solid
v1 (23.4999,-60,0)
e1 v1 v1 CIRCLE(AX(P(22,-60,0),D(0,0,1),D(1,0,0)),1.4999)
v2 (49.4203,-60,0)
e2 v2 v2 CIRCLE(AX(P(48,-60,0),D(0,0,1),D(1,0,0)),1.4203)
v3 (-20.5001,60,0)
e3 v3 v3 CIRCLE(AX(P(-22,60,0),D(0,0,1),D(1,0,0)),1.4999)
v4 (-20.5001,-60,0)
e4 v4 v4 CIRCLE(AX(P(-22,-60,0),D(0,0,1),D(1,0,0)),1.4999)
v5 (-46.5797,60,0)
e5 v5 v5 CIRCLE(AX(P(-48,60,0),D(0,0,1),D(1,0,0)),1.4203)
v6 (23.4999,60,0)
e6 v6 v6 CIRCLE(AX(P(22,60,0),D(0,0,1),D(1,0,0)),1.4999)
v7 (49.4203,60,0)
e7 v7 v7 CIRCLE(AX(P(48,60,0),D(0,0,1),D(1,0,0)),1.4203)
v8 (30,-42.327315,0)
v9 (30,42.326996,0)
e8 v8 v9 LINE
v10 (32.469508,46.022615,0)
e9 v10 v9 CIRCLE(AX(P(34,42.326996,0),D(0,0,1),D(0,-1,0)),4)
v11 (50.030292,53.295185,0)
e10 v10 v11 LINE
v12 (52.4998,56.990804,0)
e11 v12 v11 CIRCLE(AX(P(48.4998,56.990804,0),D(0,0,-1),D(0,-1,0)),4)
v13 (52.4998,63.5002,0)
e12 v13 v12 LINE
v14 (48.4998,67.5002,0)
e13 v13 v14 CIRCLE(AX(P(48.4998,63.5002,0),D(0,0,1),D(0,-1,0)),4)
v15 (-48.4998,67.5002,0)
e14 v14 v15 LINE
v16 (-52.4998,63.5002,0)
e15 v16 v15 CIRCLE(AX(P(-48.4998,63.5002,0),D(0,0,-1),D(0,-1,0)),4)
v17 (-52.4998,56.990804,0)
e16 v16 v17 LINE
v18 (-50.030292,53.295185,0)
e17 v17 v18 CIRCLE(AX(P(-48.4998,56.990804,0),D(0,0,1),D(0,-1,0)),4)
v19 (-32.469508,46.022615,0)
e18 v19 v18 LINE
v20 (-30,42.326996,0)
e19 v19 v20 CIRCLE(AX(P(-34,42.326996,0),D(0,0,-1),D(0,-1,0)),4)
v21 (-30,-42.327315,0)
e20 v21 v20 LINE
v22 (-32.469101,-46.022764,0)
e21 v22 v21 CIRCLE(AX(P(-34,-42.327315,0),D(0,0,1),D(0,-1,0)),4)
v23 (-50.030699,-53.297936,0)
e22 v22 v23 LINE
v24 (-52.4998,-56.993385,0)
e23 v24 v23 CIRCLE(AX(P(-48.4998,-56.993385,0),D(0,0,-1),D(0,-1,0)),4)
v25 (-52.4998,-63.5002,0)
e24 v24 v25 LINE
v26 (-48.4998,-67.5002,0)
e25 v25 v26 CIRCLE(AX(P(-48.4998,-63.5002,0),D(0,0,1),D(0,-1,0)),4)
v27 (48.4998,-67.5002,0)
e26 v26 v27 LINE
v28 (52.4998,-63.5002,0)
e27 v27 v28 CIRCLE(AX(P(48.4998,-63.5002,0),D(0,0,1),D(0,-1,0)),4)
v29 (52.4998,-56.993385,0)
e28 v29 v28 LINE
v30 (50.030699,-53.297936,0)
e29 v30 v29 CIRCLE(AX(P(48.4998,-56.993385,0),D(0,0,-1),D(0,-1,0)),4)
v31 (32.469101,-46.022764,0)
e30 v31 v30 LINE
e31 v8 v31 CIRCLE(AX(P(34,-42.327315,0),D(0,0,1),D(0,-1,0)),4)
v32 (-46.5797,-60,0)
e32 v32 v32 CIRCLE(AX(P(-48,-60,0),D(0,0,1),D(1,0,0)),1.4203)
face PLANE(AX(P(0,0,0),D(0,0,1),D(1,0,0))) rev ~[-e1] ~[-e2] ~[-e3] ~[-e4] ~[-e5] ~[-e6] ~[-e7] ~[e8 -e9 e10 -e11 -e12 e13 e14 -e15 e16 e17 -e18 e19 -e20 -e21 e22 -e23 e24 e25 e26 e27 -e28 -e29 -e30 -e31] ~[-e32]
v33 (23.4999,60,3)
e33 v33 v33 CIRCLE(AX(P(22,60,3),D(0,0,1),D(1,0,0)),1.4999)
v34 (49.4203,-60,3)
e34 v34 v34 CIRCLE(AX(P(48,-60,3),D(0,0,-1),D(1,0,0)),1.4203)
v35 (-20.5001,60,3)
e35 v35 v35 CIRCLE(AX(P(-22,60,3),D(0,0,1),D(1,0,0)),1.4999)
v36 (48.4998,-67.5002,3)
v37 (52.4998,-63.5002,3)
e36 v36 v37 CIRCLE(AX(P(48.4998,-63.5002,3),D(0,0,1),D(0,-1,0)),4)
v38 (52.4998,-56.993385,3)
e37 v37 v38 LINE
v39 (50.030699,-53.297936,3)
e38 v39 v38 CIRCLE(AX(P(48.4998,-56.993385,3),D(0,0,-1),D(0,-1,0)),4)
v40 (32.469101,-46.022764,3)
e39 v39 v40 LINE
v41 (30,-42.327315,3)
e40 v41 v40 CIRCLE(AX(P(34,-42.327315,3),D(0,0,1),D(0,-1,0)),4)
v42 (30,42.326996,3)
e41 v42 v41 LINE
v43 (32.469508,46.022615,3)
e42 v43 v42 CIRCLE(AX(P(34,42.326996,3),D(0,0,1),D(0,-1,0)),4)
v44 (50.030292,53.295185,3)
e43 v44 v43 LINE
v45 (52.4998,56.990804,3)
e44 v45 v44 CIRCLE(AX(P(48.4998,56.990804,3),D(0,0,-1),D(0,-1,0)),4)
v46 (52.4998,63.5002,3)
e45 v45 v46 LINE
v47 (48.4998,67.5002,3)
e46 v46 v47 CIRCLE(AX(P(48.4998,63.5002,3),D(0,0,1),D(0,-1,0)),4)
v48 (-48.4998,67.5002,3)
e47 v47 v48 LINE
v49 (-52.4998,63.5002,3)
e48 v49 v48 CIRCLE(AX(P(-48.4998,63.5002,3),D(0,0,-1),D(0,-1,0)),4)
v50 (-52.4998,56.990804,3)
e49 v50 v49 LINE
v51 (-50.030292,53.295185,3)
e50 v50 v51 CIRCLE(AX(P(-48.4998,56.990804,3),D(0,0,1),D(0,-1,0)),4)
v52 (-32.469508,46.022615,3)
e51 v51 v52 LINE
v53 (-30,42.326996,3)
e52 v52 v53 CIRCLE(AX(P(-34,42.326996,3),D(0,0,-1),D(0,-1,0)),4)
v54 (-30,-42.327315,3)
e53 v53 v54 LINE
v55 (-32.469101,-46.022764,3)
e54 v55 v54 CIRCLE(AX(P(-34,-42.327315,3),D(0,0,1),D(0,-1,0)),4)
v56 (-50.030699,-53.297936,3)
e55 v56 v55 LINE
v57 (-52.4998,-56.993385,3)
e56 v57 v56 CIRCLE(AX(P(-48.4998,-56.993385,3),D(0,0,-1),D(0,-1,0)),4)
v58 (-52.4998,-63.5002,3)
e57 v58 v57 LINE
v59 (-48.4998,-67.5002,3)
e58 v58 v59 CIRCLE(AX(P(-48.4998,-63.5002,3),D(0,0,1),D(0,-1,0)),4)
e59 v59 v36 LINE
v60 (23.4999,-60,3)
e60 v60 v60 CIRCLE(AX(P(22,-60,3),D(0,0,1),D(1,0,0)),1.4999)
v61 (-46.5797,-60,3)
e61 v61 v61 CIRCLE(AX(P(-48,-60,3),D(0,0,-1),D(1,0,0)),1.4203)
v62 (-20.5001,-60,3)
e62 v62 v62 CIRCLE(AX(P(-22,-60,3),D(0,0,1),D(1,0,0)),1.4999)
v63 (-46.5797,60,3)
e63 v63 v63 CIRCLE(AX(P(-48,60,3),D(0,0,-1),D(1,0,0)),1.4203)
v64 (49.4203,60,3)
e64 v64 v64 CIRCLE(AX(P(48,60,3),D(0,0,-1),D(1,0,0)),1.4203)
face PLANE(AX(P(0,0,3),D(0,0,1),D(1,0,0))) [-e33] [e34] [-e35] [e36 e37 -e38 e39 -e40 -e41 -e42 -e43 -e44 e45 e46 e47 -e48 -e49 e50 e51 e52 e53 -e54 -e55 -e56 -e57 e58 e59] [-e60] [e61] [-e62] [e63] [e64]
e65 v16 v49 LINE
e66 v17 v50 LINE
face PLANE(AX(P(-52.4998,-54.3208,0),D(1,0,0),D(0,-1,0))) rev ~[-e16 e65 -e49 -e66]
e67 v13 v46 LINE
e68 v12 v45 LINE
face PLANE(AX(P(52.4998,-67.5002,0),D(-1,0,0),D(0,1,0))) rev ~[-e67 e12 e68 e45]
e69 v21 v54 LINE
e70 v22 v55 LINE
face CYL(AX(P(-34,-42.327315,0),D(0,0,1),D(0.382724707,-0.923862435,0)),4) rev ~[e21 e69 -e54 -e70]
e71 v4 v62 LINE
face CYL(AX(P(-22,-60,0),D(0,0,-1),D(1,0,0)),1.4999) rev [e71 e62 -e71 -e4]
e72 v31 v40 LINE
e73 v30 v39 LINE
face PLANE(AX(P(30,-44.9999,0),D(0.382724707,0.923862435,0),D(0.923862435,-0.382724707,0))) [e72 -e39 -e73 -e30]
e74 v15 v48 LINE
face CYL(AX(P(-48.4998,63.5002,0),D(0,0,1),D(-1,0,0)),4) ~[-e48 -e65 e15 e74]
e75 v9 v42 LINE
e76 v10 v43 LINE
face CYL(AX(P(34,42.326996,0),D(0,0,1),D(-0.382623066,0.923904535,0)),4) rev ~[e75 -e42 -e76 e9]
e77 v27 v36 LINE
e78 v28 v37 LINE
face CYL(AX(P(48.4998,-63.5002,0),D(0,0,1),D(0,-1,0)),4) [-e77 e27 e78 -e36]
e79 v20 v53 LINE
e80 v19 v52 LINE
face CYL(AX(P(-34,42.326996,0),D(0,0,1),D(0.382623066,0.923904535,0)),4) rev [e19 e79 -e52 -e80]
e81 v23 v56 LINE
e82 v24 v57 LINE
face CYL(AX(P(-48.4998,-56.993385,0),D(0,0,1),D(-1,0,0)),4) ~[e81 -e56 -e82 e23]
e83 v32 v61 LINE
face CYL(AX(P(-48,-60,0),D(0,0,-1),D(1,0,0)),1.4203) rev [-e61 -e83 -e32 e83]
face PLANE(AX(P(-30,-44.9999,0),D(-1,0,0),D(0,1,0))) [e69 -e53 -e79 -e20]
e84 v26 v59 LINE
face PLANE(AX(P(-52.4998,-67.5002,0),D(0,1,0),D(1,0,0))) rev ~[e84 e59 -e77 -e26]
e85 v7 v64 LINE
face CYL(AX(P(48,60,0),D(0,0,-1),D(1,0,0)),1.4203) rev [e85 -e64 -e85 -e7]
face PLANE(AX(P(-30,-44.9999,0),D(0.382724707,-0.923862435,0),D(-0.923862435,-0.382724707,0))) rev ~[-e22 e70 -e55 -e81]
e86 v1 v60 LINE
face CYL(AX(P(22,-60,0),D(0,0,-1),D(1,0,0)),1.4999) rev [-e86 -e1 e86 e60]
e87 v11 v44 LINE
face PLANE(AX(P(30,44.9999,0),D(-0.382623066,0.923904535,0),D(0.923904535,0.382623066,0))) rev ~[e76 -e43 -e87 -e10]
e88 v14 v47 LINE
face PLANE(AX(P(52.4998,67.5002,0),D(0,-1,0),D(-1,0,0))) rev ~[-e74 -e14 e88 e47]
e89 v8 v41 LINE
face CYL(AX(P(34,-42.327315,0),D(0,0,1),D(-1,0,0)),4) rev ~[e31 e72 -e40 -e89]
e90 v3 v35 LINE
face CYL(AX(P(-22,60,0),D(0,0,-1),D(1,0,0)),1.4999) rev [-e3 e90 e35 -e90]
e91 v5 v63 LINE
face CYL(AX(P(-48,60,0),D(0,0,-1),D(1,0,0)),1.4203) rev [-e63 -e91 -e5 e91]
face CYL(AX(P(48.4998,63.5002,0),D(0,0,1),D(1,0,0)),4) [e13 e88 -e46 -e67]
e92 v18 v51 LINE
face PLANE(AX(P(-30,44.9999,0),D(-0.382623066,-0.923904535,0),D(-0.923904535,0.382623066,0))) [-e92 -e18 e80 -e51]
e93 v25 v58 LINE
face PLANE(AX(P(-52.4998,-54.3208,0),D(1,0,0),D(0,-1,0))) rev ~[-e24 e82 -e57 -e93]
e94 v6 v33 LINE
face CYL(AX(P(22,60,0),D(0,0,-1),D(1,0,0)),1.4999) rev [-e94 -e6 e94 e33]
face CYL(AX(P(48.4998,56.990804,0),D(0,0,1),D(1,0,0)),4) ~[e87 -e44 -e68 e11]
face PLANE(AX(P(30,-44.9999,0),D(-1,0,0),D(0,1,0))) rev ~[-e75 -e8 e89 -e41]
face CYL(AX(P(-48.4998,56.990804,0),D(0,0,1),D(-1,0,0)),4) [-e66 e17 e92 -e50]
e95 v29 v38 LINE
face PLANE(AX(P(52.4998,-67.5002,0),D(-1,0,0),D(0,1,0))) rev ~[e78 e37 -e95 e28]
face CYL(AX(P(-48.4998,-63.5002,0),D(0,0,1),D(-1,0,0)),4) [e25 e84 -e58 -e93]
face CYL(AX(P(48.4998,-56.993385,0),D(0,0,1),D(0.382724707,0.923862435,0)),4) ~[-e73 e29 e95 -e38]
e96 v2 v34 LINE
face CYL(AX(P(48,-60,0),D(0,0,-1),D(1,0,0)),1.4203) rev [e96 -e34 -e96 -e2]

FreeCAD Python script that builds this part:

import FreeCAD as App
import Part
import Sketcher


def edges_at(feature, points):
    """Names of the edges that pass closest to the given points."""
    edges = feature.Shape.Edges
    near = lambda p: min(range(len(edges)), key=lambda i: edges[i].distToShape(Part.Vertex(*p))[0])
    return sorted({f"Edge{near(p) + 1}" for p in points})

doc = App.newDocument("Part")
params = doc.addObject("Spreadsheet::Sheet", "Params")
for row, (alias, value) in enumerate([
    ("pad1_length", "3 mm"),
    ("fillet_radius", "4 mm"),
    ("pocket1_length", "10 mm"),
    ("fillet2_radius", "4 mm"),
    ("pocket2_length", "10 mm"),
], start=1):
    params.set(f"A{row}", alias)
    params.set(f"B{row}", "=" + value)
    params.setAlias(f"B{row}", alias)

body = doc.addObject("PartDesign::Body", "Body")

sketch1 = body.newObject("Sketcher::SketchObject", "Sketch")
sketch1.AttachmentSupport = (doc.getObject("XY_Plane"), [""])
sketch1.MapMode = "FlatFace"
sketch1.addGeometry(Part.LineSegment(App.Vector(-52.4998, -67.5002, 0), App.Vector(52.4998, -67.5002, 0)), False)
sketch1.addGeometry(Part.LineSegment(App.Vector(52.4998, -67.5002, 0), App.Vector(52.4998, 67.5002, 0)), False)
sketch1.addGeometry(Part.LineSegment(App.Vector(52.4998, 67.5002, 0), App.Vector(-52.4998, 67.5002, 0)), False)
sketch1.addGeometry(Part.LineSegment(App.Vector(-52.4998, 67.5002, 0), App.Vector(-52.4998, -67.5002, 0)), False)
sketch1.addGeometry(Part.Circle(App.Vector(-22, -60, 0), App.Vector(0, 0, 1), 1.4999), False)
sketch1.addGeometry(Part.Circle(App.Vector(22, -60, 0), App.Vector(0, 0, 1), 1.4999), False)
sketch1.addGeometry(Part.Circle(App.Vector(-22, 60, 0), App.Vector(0, 0, 1), 1.4999), False)
sketch1.addGeometry(Part.Circle(App.Vector(22, 60, 0), App.Vector(0, 0, 1), 1.4999), False)
sketch1.addConstraint(Sketcher.Constraint("Coincident", 0, 2, 1, 1))
sketch1.addConstraint(Sketcher.Constraint("Coincident", 1, 2, 2, 1))
sketch1.addConstraint(Sketcher.Constraint("Coincident", 2, 2, 3, 1))
sketch1.addConstraint(Sketcher.Constraint("Coincident", 3, 2, 0, 1))
sketch1.addConstraint(Sketcher.Constraint("Horizontal", 0))
sketch1.addConstraint(Sketcher.Constraint("Vertical", 1))
sketch1.addConstraint(Sketcher.Constraint("Horizontal", 2))
sketch1.addConstraint(Sketcher.Constraint("Vertical", 3))
sketch1.addConstraint(Sketcher.Constraint("Equal", 4, 5))
sketch1.addConstraint(Sketcher.Constraint("Equal", 5, 6))
sketch1.addConstraint(Sketcher.Constraint("Equal", 6, 7))
sketch1.addConstraint(Sketcher.Constraint("Symmetric", 5, 3, 6, 3, -1, 1))
sketch1.addConstraint(Sketcher.Constraint("Symmetric", 4, 3, 7, 3, -1, 1))
sketch1.addConstraint(Sketcher.Constraint("Symmetric", 0, 2, 2, 2, -1, 1))
sketch1.addConstraint(Sketcher.Constraint("Symmetric", 4, 3, 5, 3, -2))
sketch1.addConstraint(Sketcher.Constraint("DistanceX", 4, 3, -1, 1, 22.0))
sketch1.addConstraint(Sketcher.Constraint("DistanceY", 4, 3, -1, 1, 60.0))
sketch1.addConstraint(Sketcher.Constraint("Diameter", 4, 2.9998))
sketch1.addConstraint(Sketcher.Constraint("DistanceX", 0, 1, 0, 2, 104.9996))
sketch1.addConstraint(Sketcher.Constraint("DistanceY", 1, 1, 1, 2, 135.0004))
pad1 = body.newObject("PartDesign::Pad", "Pad")
pad1.Profile = sketch1
pad1.setExpression("Length", "Params.pad1_length")
doc.recompute()

fillet = body.newObject("PartDesign::Fillet", "Fillet")
fillet.Base = (pad1, edges_at(pad1, [
    (-52.5, 67.5, 1.5),
    (52.5, 67.5, 1.5),
    (52.5, -67.5, 1.5),
    (-52.5, -67.5, 1.5),
]))
fillet.setExpression("Radius", "Params.fillet_radius")

sketch2 = body.newObject("Sketcher::SketchObject", "Sketch001")
sketch2.AttachmentSupport = (doc.getObject("XY_Plane"), [""])
sketch2.MapMode = "FlatFace"
sketch2.addGeometry(Part.LineSegment(App.Vector(-52.4998, 54.3179, 0), App.Vector(-52.4998, -54.3208, 0)), False)
sketch2.addGeometry(Part.LineSegment(App.Vector(-52.4998, -54.3208, 0), App.Vector(-30, -44.9999, 0)), False)
sketch2.addGeometry(Part.LineSegment(App.Vector(-30, -44.9999, 0), App.Vector(-30, 44.9999, 0)), False)
sketch2.addGeometry(Part.LineSegment(App.Vector(-30, 44.9999, 0), App.Vector(-52.4998, 54.3179, 0)), False)
sketch2.addGeometry(Part.LineSegment(App.Vector(30, -44.9999, 0), App.Vector(52.4998, -54.3208, 0)), False)
sketch2.addGeometry(Part.LineSegment(App.Vector(52.4998, -54.3208, 0), App.Vector(52.4998, 54.3179, 0)), False)
sketch2.addGeometry(Part.LineSegment(App.Vector(52.4998, 54.3179, 0), App.Vector(30, 44.9999, 0)), False)
sketch2.addGeometry(Part.LineSegment(App.Vector(30, 44.9999, 0), App.Vector(30, -44.9999, 0)), False)
sketch2.addConstraint(Sketcher.Constraint("Coincident", 0, 2, 1, 1))
sketch2.addConstraint(Sketcher.Constraint("Coincident", 1, 2, 2, 1))
sketch2.addConstraint(Sketcher.Constraint("Coincident", 2, 2, 3, 1))
sketch2.addConstraint(Sketcher.Constraint("Coincident", 3, 2, 0, 1))
sketch2.addConstraint(Sketcher.Constraint("Coincident", 4, 2, 5, 1))
sketch2.addConstraint(Sketcher.Constraint("Coincident", 5, 2, 6, 1))
sketch2.addConstraint(Sketcher.Constraint("Coincident", 6, 2, 7, 1))
sketch2.addConstraint(Sketcher.Constraint("Coincident", 7, 2, 4, 1))
sketch2.addConstraint(Sketcher.Constraint("Vertical", 0))
sketch2.addConstraint(Sketcher.Constraint("Vertical", 2))
sketch2.addConstraint(Sketcher.Constraint("Vertical", 5))
sketch2.addConstraint(Sketcher.Constraint("Vertical", 7))
sketch2.addConstraint(Sketcher.Constraint("Symmetric", 1, 2, 6, 2, -1, 1))
sketch2.addConstraint(Sketcher.Constraint("Symmetric", 0, 2, 4, 2, -2))
sketch2.addConstraint(Sketcher.Constraint("Parallel", 3, 4))
sketch2.addConstraint(Sketcher.Constraint("Parallel", 1, 6))
sketch2.addConstraint(Sketcher.Constraint("Horizontal", 3, 2, 5, 2))
sketch2.addConstraint(Sketcher.Constraint("Horizontal", 2, 2, 6, 2))
sketch2.addConstraint(Sketcher.Constraint("DistanceX", 1, 2, -1, 1, 30.0))
sketch2.addConstraint(Sketcher.Constraint("DistanceY", 1, 2, -1, 1, 45.0))
sketch2.addConstraint(Sketcher.Constraint("Distance", 1, 24.354))
sketch2.addConstraint(Sketcher.Constraint("DistanceY", 0, 2, 0, 1, 108.6387))
pocket1 = body.newObject("PartDesign::Pocket", "Pocket")
pocket1.Profile = sketch2
pocket1.setExpression("Length", "Params.pocket1_length")
pocket1.Reversed = True
doc.recompute()

fillet2 = body.newObject("PartDesign::Fillet", "Fillet001")
fillet2.Base = (pocket1, edges_at(pocket1, [
    (52.5, 54.318, 1.5),
    (30, 45, 1.5),
    (-30, 45, 1.5),
    (-52.5, 54.318, 1.5),
    (-30, -45, 1.5),
    (-52.5, -54.321, 1.5),
    (30, -45, 1.5),
    (52.5, -54.321, 1.5),
]))
fillet2.setExpression("Radius", "Params.fillet2_radius")

sketch3 = body.newObject("Sketcher::SketchObject", "Sketch002")
sketch3.AttachmentSupport = (doc.getObject("XY_Plane"), [""])
sketch3.MapMode = "FlatFace"
sketch3.addGeometry(Part.Circle(App.Vector(48, 60, 0), App.Vector(0, 0, 1), 1.4203), False)
sketch3.addGeometry(Part.Circle(App.Vector(-48, 60, 0), App.Vector(0, 0, 1), 1.4203), False)
sketch3.addGeometry(Part.Circle(App.Vector(48, -60, 0), App.Vector(0, 0, 1), 1.4203), False)
sketch3.addGeometry(Part.Circle(App.Vector(-48, -60, 0), App.Vector(0, 0, 1), 1.4203), False)
sketch3.addConstraint(Sketcher.Constraint("Equal", 0, 1))
sketch3.addConstraint(Sketcher.Constraint("Equal", 1, 2))
sketch3.addConstraint(Sketcher.Constraint("Equal", 2, 3))
sketch3.addConstraint(Sketcher.Constraint("Symmetric", 1, 3, 2, 3, -1, 1))
sketch3.addConstraint(Sketcher.Constraint("Symmetric", 0, 3, 3, 3, -1, 1))
sketch3.addConstraint(Sketcher.Constraint("Symmetric", 0, 3, 1, 3, -2))
sketch3.addConstraint(Sketcher.Constraint("DistanceX", -1, 1, 0, 3, 48.0))
sketch3.addConstraint(Sketcher.Constraint("DistanceY", -1, 1, 0, 3, 60.0))
sketch3.addConstraint(Sketcher.Constraint("Diameter", 0, 2.8406))
pocket2 = body.newObject("PartDesign::Pocket", "Pocket001")
pocket2.Profile = sketch3
pocket2.setExpression("Length", "Params.pocket2_length")
pocket2.Reversed = True

doc.recompute()
